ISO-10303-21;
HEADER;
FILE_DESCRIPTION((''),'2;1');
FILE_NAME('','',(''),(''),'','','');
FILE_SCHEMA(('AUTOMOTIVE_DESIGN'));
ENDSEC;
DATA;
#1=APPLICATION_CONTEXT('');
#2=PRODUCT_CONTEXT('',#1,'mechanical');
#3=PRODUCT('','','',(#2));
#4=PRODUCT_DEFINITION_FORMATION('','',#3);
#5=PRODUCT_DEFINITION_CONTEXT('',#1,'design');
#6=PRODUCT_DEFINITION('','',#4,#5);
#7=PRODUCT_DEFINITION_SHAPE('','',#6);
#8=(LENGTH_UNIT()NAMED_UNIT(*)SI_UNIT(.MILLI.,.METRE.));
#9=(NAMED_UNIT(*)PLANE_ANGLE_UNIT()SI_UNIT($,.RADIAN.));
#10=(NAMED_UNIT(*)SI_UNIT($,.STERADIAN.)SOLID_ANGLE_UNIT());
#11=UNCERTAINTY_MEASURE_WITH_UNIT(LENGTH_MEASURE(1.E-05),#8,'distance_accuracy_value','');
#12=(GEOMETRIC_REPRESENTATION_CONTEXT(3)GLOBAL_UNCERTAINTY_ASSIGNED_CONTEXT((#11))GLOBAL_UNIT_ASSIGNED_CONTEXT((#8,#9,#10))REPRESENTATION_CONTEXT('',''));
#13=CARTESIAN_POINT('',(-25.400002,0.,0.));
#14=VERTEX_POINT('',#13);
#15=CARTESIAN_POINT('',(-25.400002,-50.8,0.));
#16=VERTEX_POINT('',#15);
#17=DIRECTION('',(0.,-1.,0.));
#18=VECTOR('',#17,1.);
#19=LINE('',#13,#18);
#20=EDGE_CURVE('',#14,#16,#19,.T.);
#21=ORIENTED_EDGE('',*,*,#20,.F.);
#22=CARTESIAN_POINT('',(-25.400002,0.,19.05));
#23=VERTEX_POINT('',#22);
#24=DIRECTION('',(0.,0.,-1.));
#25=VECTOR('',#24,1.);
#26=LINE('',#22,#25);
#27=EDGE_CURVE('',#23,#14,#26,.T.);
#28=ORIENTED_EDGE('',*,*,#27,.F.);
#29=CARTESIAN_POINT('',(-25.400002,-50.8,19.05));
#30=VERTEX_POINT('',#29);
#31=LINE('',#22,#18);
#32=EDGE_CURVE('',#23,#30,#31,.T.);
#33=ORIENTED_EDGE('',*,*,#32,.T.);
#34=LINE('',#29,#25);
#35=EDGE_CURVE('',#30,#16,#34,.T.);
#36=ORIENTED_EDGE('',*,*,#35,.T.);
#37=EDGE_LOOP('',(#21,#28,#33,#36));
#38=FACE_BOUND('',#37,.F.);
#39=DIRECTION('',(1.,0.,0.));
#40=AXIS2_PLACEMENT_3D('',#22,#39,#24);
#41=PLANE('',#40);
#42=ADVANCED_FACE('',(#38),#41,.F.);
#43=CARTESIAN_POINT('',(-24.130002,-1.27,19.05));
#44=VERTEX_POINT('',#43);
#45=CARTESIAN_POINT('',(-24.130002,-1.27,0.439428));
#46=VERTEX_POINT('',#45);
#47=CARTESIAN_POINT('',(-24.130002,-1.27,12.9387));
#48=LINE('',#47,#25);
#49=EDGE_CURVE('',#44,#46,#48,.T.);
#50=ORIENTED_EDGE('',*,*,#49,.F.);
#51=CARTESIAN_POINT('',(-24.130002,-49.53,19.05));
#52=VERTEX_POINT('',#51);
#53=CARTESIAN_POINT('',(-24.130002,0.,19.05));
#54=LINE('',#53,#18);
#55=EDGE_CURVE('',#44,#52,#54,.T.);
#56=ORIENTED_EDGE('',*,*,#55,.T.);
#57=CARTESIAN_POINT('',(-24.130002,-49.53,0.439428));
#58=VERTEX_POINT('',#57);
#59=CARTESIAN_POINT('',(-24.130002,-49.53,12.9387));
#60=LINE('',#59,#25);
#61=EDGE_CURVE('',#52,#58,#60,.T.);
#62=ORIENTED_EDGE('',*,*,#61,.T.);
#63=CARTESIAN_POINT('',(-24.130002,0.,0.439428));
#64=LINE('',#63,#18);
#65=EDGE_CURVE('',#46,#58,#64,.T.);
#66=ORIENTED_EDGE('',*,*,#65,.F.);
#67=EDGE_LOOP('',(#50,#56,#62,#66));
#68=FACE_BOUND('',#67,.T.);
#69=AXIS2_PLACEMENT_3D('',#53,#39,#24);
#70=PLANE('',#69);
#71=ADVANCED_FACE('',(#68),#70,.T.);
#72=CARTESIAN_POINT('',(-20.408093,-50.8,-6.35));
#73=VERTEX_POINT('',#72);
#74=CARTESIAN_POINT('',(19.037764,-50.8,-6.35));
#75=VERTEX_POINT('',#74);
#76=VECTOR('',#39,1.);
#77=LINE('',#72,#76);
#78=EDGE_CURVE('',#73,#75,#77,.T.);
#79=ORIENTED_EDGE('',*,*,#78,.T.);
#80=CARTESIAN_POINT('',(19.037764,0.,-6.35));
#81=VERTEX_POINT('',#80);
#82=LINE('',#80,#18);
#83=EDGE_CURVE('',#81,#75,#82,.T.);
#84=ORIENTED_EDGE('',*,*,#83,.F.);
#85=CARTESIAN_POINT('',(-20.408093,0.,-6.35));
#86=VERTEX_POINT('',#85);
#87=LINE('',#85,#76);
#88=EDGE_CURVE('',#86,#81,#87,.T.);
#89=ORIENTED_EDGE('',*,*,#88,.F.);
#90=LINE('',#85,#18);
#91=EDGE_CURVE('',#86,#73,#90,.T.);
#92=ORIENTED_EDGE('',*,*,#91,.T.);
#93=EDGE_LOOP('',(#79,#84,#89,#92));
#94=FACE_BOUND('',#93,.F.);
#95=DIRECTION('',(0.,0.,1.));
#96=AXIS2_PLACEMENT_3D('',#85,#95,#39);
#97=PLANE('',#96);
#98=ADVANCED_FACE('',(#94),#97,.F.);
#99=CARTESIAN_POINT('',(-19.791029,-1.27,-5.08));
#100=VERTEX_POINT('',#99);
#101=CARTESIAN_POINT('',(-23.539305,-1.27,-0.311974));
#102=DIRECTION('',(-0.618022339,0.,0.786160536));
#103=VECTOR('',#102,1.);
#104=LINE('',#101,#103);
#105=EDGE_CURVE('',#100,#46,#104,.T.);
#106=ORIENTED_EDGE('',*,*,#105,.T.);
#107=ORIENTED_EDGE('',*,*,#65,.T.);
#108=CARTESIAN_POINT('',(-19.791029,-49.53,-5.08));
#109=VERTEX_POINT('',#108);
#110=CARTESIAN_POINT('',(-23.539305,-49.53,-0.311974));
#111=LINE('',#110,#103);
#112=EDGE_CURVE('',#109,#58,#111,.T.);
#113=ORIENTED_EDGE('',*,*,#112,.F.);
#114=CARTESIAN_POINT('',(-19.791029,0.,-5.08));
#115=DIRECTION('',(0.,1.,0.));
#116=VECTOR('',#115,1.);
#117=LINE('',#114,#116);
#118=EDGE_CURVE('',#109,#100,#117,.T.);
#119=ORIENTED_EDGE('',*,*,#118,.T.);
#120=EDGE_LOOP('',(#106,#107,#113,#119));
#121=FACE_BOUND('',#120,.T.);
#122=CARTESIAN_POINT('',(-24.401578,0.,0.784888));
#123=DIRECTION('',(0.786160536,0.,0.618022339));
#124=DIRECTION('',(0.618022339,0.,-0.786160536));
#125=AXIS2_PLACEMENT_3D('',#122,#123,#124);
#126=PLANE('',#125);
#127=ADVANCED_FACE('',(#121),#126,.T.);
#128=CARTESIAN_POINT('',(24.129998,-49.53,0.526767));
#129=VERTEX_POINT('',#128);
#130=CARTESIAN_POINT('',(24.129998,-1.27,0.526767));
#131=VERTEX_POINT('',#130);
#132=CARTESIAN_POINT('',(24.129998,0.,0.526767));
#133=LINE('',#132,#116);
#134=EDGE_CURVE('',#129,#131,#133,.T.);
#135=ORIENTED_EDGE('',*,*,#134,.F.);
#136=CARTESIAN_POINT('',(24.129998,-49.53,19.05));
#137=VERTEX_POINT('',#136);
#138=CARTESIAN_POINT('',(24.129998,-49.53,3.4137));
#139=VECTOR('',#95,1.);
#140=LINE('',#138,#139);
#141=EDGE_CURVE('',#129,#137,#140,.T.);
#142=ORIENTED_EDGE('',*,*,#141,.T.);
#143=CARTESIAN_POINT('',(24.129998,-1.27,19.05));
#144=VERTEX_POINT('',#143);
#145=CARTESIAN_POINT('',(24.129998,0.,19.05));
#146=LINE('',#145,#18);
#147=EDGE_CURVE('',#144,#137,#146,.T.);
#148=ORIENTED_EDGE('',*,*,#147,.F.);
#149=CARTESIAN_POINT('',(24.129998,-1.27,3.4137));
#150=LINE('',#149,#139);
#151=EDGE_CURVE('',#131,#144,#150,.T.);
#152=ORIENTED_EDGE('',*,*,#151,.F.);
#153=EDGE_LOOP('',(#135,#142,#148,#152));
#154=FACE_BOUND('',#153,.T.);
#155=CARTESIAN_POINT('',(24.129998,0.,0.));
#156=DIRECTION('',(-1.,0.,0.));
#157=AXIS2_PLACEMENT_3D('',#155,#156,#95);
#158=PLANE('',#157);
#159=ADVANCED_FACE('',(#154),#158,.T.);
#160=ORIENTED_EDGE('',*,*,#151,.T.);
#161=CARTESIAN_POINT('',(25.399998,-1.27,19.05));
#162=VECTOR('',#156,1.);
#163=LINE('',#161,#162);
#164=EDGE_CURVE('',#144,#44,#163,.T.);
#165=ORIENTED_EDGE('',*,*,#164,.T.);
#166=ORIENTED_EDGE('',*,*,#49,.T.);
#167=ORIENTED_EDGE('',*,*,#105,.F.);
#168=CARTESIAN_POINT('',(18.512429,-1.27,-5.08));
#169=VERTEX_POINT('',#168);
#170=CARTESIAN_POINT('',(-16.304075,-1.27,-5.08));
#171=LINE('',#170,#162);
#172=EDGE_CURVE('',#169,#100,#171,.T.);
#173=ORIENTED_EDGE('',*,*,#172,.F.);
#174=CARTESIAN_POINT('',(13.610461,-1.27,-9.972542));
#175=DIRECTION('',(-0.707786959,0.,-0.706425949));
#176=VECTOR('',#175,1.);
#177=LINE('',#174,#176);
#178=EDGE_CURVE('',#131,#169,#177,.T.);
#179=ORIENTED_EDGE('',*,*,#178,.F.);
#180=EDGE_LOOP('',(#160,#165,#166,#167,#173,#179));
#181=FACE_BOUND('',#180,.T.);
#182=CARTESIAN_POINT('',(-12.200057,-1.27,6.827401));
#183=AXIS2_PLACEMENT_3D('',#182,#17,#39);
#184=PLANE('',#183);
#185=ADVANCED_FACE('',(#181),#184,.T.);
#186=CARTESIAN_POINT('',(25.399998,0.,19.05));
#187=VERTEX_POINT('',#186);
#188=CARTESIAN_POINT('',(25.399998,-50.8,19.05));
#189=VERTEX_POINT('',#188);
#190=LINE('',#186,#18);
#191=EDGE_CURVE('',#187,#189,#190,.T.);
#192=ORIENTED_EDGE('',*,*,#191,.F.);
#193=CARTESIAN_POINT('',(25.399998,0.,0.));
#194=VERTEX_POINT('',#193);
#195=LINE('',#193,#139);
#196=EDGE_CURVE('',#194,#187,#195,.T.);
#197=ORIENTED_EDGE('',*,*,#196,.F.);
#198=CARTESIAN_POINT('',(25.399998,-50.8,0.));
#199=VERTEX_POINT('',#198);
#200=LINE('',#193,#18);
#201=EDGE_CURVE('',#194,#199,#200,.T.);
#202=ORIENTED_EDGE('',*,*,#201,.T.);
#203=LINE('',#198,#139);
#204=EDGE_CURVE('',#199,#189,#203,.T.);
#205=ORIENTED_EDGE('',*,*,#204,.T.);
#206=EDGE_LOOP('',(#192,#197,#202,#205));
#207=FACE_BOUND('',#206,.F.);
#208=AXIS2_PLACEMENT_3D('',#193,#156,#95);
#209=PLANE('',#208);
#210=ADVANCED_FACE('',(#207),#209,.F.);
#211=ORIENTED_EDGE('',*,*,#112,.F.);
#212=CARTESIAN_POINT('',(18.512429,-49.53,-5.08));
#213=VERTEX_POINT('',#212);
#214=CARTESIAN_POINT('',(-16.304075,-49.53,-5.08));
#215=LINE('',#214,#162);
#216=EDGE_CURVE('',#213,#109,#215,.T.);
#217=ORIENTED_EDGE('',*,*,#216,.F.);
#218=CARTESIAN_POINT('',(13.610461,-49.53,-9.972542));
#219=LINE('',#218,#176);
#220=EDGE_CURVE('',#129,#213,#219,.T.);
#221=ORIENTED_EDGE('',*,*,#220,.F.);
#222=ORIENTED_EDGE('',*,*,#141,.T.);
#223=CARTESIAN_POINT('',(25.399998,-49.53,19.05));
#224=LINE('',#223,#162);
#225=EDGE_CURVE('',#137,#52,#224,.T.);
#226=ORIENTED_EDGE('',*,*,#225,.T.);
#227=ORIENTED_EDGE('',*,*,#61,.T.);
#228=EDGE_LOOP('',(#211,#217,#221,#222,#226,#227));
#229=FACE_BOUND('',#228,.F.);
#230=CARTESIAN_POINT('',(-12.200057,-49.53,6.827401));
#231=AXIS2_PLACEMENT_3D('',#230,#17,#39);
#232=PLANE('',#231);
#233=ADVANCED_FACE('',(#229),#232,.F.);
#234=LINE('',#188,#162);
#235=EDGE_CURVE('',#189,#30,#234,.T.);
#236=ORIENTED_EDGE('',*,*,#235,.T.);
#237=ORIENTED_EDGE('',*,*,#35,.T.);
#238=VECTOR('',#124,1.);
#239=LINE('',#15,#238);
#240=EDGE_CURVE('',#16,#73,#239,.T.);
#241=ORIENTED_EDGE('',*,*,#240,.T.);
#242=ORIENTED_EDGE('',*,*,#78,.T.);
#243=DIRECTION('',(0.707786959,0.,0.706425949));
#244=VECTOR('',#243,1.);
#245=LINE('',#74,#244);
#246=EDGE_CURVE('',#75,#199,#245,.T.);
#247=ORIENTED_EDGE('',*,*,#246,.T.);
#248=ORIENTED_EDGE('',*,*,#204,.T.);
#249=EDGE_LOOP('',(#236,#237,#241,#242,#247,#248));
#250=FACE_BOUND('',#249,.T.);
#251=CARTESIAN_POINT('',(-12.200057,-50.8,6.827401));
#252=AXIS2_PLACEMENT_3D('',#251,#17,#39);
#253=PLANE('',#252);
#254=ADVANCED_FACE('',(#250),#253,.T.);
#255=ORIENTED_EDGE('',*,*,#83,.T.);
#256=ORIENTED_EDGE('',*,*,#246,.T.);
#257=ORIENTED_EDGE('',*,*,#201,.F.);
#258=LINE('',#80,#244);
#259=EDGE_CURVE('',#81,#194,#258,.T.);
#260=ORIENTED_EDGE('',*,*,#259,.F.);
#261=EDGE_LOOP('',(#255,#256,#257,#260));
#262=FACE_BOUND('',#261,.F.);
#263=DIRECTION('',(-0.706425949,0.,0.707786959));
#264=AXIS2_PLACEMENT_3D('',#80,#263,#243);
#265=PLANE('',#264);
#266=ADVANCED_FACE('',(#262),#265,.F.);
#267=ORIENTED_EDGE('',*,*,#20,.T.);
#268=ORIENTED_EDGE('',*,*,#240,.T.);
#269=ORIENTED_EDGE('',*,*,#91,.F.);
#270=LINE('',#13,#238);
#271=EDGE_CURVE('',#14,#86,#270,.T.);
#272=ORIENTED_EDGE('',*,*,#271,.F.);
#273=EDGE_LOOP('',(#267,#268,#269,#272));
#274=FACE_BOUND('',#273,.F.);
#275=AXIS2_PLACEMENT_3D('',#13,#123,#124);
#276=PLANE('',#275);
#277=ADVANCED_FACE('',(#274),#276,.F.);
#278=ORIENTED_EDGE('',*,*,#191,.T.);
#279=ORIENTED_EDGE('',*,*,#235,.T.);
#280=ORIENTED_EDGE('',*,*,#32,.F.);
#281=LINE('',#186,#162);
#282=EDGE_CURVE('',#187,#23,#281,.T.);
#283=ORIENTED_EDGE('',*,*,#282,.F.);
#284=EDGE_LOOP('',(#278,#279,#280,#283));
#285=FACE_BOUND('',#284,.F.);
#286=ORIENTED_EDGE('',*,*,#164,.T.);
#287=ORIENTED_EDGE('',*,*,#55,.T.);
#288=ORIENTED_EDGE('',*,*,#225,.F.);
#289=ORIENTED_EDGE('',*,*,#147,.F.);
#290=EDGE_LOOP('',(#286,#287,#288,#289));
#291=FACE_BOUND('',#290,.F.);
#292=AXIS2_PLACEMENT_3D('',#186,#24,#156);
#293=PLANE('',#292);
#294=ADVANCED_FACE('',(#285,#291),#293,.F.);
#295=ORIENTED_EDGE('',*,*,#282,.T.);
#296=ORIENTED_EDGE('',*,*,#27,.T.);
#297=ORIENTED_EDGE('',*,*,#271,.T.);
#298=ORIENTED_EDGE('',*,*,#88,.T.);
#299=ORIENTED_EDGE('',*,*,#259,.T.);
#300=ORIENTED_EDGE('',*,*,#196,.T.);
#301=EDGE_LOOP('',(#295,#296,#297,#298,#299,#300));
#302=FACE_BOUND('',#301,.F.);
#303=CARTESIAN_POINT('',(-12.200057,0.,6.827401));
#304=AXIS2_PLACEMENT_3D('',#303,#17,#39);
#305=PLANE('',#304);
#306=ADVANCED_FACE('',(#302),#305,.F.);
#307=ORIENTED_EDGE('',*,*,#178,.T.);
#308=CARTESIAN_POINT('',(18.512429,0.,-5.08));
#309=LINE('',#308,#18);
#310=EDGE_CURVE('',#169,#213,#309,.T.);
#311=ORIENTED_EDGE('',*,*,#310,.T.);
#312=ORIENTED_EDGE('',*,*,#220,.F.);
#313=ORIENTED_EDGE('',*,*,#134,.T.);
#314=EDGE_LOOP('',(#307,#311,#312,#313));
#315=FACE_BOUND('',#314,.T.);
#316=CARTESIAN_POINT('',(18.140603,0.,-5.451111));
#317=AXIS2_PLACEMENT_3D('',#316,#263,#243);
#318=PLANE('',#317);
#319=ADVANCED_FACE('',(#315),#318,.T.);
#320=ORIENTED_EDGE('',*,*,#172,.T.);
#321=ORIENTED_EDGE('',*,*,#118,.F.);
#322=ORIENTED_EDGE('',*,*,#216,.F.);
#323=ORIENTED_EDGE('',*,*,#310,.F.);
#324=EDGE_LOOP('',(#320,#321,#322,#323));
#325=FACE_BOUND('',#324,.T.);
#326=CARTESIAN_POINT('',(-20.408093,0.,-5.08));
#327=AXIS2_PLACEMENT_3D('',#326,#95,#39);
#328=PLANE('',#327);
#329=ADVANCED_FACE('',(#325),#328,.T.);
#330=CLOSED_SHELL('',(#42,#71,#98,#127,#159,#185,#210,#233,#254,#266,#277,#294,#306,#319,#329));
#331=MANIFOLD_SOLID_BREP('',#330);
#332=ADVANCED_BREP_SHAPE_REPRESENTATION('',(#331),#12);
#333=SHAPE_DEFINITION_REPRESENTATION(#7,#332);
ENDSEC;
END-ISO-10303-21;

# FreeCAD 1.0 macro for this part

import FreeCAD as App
import Part
import Sketcher
from FreeCAD import Vector
Q = App.Units.Quantity


def faces_at(feature, points):
    """Names of the faces that lie closest to the given points."""
    faces = feature.Shape.Faces
    near = lambda p: min(range(len(faces)), key=lambda i: faces[i].distToShape(Part.Vertex(*p))[0])
    return sorted({f"Face{near(p) + 1}" for p in points})

doc = App.newDocument("Part")
body = doc.addObject("PartDesign::Body", "Body")

sketch1 = body.newObject("Sketcher::SketchObject", "Sketch")
sketch1.AttachmentSupport = (doc.getObject("XZ_Plane"), [""])
sketch1.MapMode = "FlatFace"
sketch1.addGeometry([
    Part.LineSegment(Vector(-25.400002, 19.05, 0), Vector(-25.400002, 0, 0)),
    Part.LineSegment(Vector(-25.400002, 0, 0), Vector(-20.408093, -6.35, 0)),
    Part.LineSegment(Vector(-20.408093, -6.35, 0), Vector(19.037764, -6.35, 0)),
    Part.LineSegment(Vector(19.037764, -6.35, 0), Vector(25.399998, 0, 0)),
    Part.LineSegment(Vector(25.399998, 0, 0), Vector(25.399998, 19.05, 0)),
    Part.LineSegment(Vector(25.399998, 19.05, 0), Vector(-25.400002, 19.05, 0)),
], False)
sketch1.addConstraint([
    Sketcher.Constraint("Coincident", 0, 2, 1, 1),
    Sketcher.Constraint("Coincident", 1, 2, 2, 1),
    Sketcher.Constraint("Coincident", 2, 2, 3, 1),
    Sketcher.Constraint("Coincident", 3, 2, 4, 1),
    Sketcher.Constraint("Coincident", 4, 2, 5, 1),
    Sketcher.Constraint("Coincident", 5, 2, 0, 1),
    Sketcher.Constraint("Vertical", 0),
    Sketcher.Constraint("Horizontal", 2),
    Sketcher.Constraint("Vertical", 4),
    Sketcher.Constraint("Horizontal", 5),
    Sketcher.Constraint("Symmetric", 0, 2, 3, 2, -1, 1),
    Sketcher.Constraint("PointOnObject", 0, 2, -1),
    Sketcher.Constraint("DistanceX", 5, 2, 5, 1, Q("2 in")),
    Sketcher.Constraint("DistanceY", 2, 2, 4, 2, Q("1 in")),
    Sketcher.Constraint("DistanceY", 0, 2, 0, 1, Q("0.75 in")),
    Sketcher.Constraint("Distance", 1, Q("8.077231 mm")),
    Sketcher.Constraint("Distance", 3, Q("8.988911 mm")),
])
pad1 = body.newObject("PartDesign::Pad", "Pad")
pad1.Profile = sketch1
pad1.Length = Q("2 in")
doc.recompute()

thickness = body.newObject("PartDesign::Thickness", "Thickness")
thickness.Base = (pad1, faces_at(pad1, [(0, -25.4, 19.05)]))
thickness.Value = Q("0.05 in")
thickness.Reversed = True
thickness.Join = "Arc"

doc.recompute()
